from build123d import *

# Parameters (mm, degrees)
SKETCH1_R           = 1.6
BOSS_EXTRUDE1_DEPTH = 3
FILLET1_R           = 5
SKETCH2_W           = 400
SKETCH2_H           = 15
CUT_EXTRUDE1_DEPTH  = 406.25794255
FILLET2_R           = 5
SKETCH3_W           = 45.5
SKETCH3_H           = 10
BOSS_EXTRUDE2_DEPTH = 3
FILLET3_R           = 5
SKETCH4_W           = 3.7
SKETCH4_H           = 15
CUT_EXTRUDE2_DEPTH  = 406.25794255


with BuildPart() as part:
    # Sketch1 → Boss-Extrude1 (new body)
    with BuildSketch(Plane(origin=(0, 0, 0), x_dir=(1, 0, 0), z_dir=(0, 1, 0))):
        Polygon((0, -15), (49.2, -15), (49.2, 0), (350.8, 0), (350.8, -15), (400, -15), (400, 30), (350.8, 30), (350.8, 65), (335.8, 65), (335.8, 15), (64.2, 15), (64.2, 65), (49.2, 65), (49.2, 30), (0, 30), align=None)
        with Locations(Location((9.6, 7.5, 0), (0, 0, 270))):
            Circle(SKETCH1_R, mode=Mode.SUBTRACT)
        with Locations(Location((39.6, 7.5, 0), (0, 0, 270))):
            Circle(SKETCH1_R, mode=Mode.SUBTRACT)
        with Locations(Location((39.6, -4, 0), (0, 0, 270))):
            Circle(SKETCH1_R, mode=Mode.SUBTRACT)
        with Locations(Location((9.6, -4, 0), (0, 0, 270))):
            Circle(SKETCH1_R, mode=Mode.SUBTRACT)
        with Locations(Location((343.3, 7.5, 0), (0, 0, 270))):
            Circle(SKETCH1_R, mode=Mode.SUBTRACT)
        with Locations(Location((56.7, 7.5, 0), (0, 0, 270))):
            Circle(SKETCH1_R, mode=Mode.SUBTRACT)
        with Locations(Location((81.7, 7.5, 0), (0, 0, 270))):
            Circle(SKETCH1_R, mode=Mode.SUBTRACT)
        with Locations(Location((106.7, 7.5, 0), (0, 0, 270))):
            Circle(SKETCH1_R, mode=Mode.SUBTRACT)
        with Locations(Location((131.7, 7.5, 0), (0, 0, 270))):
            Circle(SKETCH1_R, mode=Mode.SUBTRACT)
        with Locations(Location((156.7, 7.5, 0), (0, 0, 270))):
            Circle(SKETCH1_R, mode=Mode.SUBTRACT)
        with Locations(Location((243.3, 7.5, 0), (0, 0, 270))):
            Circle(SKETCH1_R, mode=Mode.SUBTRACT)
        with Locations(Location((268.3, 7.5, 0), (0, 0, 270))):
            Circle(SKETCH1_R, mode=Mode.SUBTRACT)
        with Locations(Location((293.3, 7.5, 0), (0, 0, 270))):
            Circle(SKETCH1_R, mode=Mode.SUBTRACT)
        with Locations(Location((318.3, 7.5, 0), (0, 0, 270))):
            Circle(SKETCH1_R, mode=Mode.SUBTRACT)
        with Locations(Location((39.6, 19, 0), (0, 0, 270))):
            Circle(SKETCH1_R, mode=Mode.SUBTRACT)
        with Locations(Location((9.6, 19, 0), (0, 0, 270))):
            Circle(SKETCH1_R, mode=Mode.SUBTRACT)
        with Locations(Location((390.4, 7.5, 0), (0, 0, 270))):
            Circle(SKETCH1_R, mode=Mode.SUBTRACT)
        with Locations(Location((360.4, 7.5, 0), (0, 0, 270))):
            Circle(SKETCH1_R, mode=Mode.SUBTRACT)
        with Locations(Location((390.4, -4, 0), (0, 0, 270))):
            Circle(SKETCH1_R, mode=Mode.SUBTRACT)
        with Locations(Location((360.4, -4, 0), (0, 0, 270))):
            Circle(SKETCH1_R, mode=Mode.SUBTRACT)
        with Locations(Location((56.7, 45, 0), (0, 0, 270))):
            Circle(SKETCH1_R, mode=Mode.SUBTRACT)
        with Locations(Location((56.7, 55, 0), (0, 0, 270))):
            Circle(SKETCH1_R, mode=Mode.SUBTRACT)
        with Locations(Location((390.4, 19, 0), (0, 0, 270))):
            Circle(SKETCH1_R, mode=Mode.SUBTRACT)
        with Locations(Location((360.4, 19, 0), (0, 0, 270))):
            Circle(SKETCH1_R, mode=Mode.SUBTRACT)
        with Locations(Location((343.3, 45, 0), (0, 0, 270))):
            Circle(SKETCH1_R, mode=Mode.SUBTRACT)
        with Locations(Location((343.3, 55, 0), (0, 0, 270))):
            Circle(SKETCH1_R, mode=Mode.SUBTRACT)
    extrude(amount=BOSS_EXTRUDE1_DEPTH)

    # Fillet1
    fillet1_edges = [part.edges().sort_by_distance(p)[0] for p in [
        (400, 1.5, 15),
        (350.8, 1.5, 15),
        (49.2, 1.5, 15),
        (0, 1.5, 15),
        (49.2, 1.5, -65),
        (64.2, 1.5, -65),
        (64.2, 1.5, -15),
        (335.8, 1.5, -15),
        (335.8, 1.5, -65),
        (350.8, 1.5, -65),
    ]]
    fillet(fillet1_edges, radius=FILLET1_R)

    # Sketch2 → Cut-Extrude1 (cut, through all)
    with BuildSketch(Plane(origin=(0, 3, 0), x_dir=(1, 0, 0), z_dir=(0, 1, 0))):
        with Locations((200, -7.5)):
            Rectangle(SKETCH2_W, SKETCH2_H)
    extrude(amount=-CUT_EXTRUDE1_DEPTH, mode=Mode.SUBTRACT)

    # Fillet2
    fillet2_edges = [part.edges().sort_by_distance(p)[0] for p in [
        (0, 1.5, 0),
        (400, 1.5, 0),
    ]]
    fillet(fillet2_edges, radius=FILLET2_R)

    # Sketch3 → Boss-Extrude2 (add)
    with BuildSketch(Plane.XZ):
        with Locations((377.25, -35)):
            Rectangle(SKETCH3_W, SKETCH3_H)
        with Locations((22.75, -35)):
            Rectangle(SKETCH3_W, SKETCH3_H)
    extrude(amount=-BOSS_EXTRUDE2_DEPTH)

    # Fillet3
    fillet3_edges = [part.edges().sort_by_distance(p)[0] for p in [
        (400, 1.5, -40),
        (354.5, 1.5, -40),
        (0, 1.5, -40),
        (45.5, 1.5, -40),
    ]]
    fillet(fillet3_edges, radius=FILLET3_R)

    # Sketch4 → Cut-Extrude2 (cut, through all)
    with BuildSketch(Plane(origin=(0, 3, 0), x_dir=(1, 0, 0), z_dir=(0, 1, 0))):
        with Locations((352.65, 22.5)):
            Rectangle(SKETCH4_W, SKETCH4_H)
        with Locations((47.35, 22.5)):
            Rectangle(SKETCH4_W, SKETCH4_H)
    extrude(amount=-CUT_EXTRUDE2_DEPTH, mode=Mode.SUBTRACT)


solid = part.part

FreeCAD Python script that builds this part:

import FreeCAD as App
import Part
import Sketcher
Q = App.Units.Quantity


def edges_at(feature, points):
    """Names of the edges that pass closest to the given points."""
    edges = feature.Shape.Edges
    near = lambda p: min(range(len(edges)), key=lambda i: edges[i].distToShape(Part.Vertex(*p))[0])
    return sorted({f"Edge{near(p) + 1}" for p in points})

doc = App.newDocument("Part")
body = doc.addObject("PartDesign::Body", "Body")

sketch1 = doc.addObject("Sketcher::SketchObject", "Sketch")
body.addObject(sketch1)
sketch1.AttachmentSupport = (doc.XZ_Plane, [""])
sketch1.MapMode = "FlatFace"
sketch1.addGeometry([
    Part.LineSegment(App.Vector(0, 15, 0), App.Vector(49.2, 15, 0)),
    Part.LineSegment(App.Vector(49.2, 15, 0), App.Vector(49.2, 0, 0)),
    Part.LineSegment(App.Vector(49.2, 0, 0), App.Vector(350.8, 0, 0)),
    Part.LineSegment(App.Vector(350.8, 0, 0), App.Vector(350.8, 15, 0)),
    Part.LineSegment(App.Vector(350.8, 15, 0), App.Vector(400, 15, 0)),
    Part.LineSegment(App.Vector(400, 15, 0), App.Vector(400, -30, 0)),
    Part.LineSegment(App.Vector(400, -30, 0), App.Vector(350.8, -30, 0)),
    Part.LineSegment(App.Vector(350.8, -30, 0), App.Vector(350.8, -65, 0)),
    Part.LineSegment(App.Vector(350.8, -65, 0), App.Vector(335.8, -65, 0)),
    Part.LineSegment(App.Vector(335.8, -65, 0), App.Vector(335.8, -15, 0)),
    Part.LineSegment(App.Vector(335.8, -15, 0), App.Vector(64.2, -15, 0)),
    Part.LineSegment(App.Vector(64.2, -15, 0), App.Vector(64.2, -65, 0)),
    Part.LineSegment(App.Vector(64.2, -65, 0), App.Vector(49.2, -65, 0)),
    Part.LineSegment(App.Vector(49.2, -65, 0), App.Vector(49.2, -30, 0)),
    Part.LineSegment(App.Vector(49.2, -30, 0), App.Vector(0, -30, 0)),
    Part.LineSegment(App.Vector(0, -30, 0), App.Vector(0, 15, 0)),
    Part.Circle(App.Vector(9.6, 4, 0), App.Vector(0, 0, 1), 1.6),
    Part.Circle(App.Vector(39.6, 4, 0), App.Vector(0, 0, 1), 1.6),
    Part.Circle(App.Vector(9.6, -7.5, 0), App.Vector(0, 0, 1), 1.6),
    Part.Circle(App.Vector(39.6, -7.5, 0), App.Vector(0, 0, 1), 1.6),
    Part.Circle(App.Vector(56.7, -7.5, 0), App.Vector(0, 0, 1), 1.6),
    Part.Circle(App.Vector(81.7, -7.5, 0), App.Vector(0, 0, 1), 1.6),
    Part.Circle(App.Vector(106.7, -7.5, 0), App.Vector(0, 0, 1), 1.6),
    Part.Circle(App.Vector(131.7, -7.5, 0), App.Vector(0, 0, 1), 1.6),
    Part.Circle(App.Vector(156.7, -7.5, 0), App.Vector(0, 0, 1), 1.6),
    Part.Circle(App.Vector(9.6, -19, 0), App.Vector(0, 0, 1), 1.6),
    Part.Circle(App.Vector(39.6, -19, 0), App.Vector(0, 0, 1), 1.6),
    Part.Circle(App.Vector(243.3, -7.5, 0), App.Vector(0, 0, 1), 1.6),
    Part.Circle(App.Vector(268.3, -7.5, 0), App.Vector(0, 0, 1), 1.6),
    Part.Circle(App.Vector(293.3, -7.5, 0), App.Vector(0, 0, 1), 1.6),
    Part.Circle(App.Vector(360.4, 4, 0), App.Vector(0, 0, 1), 1.6),
    Part.Circle(App.Vector(390.4, 4, 0), App.Vector(0, 0, 1), 1.6),
    Part.Circle(App.Vector(318.3, -7.5, 0), App.Vector(0, 0, 1), 1.6),
    Part.Circle(App.Vector(343.3, -7.5, 0), App.Vector(0, 0, 1), 1.6),
    Part.Circle(App.Vector(360.4, -7.5, 0), App.Vector(0, 0, 1), 1.6),
    Part.Circle(App.Vector(390.4, -7.5, 0), App.Vector(0, 0, 1), 1.6),
    Part.Circle(App.Vector(360.4, -19, 0), App.Vector(0, 0, 1), 1.6),
    Part.Circle(App.Vector(390.4, -19, 0), App.Vector(0, 0, 1), 1.6),
    Part.Circle(App.Vector(56.7, -45, 0), App.Vector(0, 0, 1), 1.6),
    Part.Circle(App.Vector(56.7, -55, 0), App.Vector(0, 0, 1), 1.6),
    Part.Circle(App.Vector(343.3, -45, 0), App.Vector(0, 0, 1), 1.6),
    Part.Circle(App.Vector(343.3, -55, 0), App.Vector(0, 0, 1), 1.6),
], False)
sketch1.addConstraint([
    Sketcher.Constraint("Coincident", 0, 2, 1, 1),
    Sketcher.Constraint("Coincident", 1, 2, 2, 1),
    Sketcher.Constraint("Coincident", 2, 2, 3, 1),
    Sketcher.Constraint("Coincident", 3, 2, 4, 1),
    Sketcher.Constraint("Coincident", 4, 2, 5, 1),
    Sketcher.Constraint("Coincident", 5, 2, 6, 1),
    Sketcher.Constraint("Coincident", 6, 2, 7, 1),
    Sketcher.Constraint("Coincident", 7, 2, 8, 1),
    Sketcher.Constraint("Coincident", 8, 2, 9, 1),
    Sketcher.Constraint("Coincident", 9, 2, 10, 1),
    Sketcher.Constraint("Coincident", 10, 2, 11, 1),
    Sketcher.Constraint("Coincident", 11, 2, 12, 1),
    Sketcher.Constraint("Coincident", 12, 2, 13, 1),
    Sketcher.Constraint("Coincident", 13, 2, 14, 1),
    Sketcher.Constraint("Coincident", 14, 2, 15, 1),
    Sketcher.Constraint("Coincident", 15, 2, 0, 1),
    Sketcher.Constraint("Horizontal", 0),
    Sketcher.Constraint("Vertical", 1),
    Sketcher.Constraint("Horizontal", 2),
    Sketcher.Constraint("Vertical", 3),
    Sketcher.Constraint("Horizontal", 4),
    Sketcher.Constraint("Vertical", 5),
    Sketcher.Constraint("Horizontal", 6),
    Sketcher.Constraint("Vertical", 7),
    Sketcher.Constraint("Horizontal", 8),
    Sketcher.Constraint("Vertical", 9),
    Sketcher.Constraint("Horizontal", 10),
    Sketcher.Constraint("Vertical", 11),
    Sketcher.Constraint("Horizontal", 12),
    Sketcher.Constraint("Vertical", 13),
    Sketcher.Constraint("Horizontal", 14),
    Sketcher.Constraint("Vertical", 15),
    Sketcher.Constraint("Equal", 16, 17),
    Sketcher.Constraint("Equal", 17, 18),
    Sketcher.Constraint("Equal", 18, 19),
    Sketcher.Constraint("Equal", 19, 20),
    Sketcher.Constraint("Equal", 20, 21),
    Sketcher.Constraint("Equal", 21, 22),
    Sketcher.Constraint("Equal", 22, 23),
    Sketcher.Constraint("Equal", 23, 24),
    Sketcher.Constraint("Equal", 24, 25),
    Sketcher.Constraint("Equal", 25, 26),
    Sketcher.Constraint("Equal", 26, 27),
    Sketcher.Constraint("Equal", 27, 28),
    Sketcher.Constraint("Equal", 28, 29),
    Sketcher.Constraint("Equal", 29, 30),
    Sketcher.Constraint("Equal", 30, 31),
    Sketcher.Constraint("Equal", 31, 32),
    Sketcher.Constraint("Equal", 32, 33),
    Sketcher.Constraint("Equal", 33, 34),
    Sketcher.Constraint("Equal", 34, 35),
    Sketcher.Constraint("Equal", 35, 36),
    Sketcher.Constraint("Equal", 36, 37),
    Sketcher.Constraint("Equal", 37, 38),
    Sketcher.Constraint("Equal", 38, 39),
    Sketcher.Constraint("Equal", 39, 40),
    Sketcher.Constraint("Equal", 40, 41),
    Sketcher.Constraint("PointOnObject", 1, 2, -1),
    Sketcher.Constraint("PointOnObject", 14, 2, -2),
    Sketcher.Constraint("Horizontal", 16, 3, 17, 3),
    Sketcher.Constraint("Horizontal", 18, 3, 19, 3),
    Sketcher.Constraint("Horizontal", 19, 3, 20, 3),
    Sketcher.Constraint("Horizontal", 20, 3, 21, 3),
    Sketcher.Constraint("Horizontal", 21, 3, 22, 3),
    Sketcher.Constraint("Horizontal", 22, 3, 23, 3),
    Sketcher.Constraint("Horizontal", 23, 3, 24, 3),
    Sketcher.Constraint("Horizontal", 25, 3, 26, 3),
    Sketcher.Constraint("Horizontal", 24, 3, 27, 3),
    Sketcher.Constraint("Horizontal", 27, 3, 28, 3),
    Sketcher.Constraint("Horizontal", 28, 3, 29, 3),
    Sketcher.Constraint("Horizontal", 17, 3, 30, 3),
    Sketcher.Constraint("Horizontal", 30, 3, 31, 3),
    Sketcher.Constraint("Horizontal", 29, 3, 32, 3),
    Sketcher.Constraint("Horizontal", 32, 3, 33, 3),
    Sketcher.Constraint("Horizontal", 33, 3, 34, 3),
    Sketcher.Constraint("Horizontal", 34, 3, 35, 3),
    Sketcher.Constraint("Horizontal", 26, 3, 36, 3),
    Sketcher.Constraint("Horizontal", 36, 3, 37, 3),
    Sketcher.Constraint("Horizontal", 38, 3, 40, 3),
    Sketcher.Constraint("Horizontal", 39, 3, 41, 3),
    Sketcher.Constraint("Horizontal", 0, 2, 3, 2),
    Sketcher.Constraint("Horizontal", 8, 2, 11, 2),
    Sketcher.Constraint("Horizontal", 6, 2, 13, 2),
    Sketcher.Constraint("Vertical", 16, 3, 18, 3),
    Sketcher.Constraint("Vertical", 17, 3, 19, 3),
    Sketcher.Constraint("Vertical", 18, 3, 25, 3),
    Sketcher.Constraint("Vertical", 19, 3, 26, 3),
    Sketcher.Constraint("Vertical", 30, 3, 34, 3),
    Sketcher.Constraint("Vertical", 31, 3, 35, 3),
    Sketcher.Constraint("Vertical", 34, 3, 36, 3),
    Sketcher.Constraint("Vertical", 35, 3, 37, 3),
    Sketcher.Constraint("Vertical", 20, 3, 38, 3),
    Sketcher.Constraint("Vertical", 38, 3, 39, 3),
    Sketcher.Constraint("Vertical", 33, 3, 40, 3),
    Sketcher.Constraint("Vertical", 40, 3, 41, 3),
    Sketcher.Constraint("Vertical", 3, 2, 6, 2),
    Sketcher.Constraint("Vertical", 1, 2, 12, 2),
    Sketcher.Constraint("Equal", 0, 4),
    Sketcher.Constraint("Equal", 8, 12),
    Sketcher.Constraint("Equal", 12, 1),
    Sketcher.Constraint("Diameter", 16, Q("3.2 mm")),
    Sketcher.Constraint("DistanceX", 8, 2, 8, 1, Q("15 mm")),
    Sketcher.Constraint("DistanceY", 5, 2, 5, 1, Q("45 mm")),
    Sketcher.Constraint("DistanceY", 7, 2, 7, 1, Q("35 mm")),
    Sketcher.Constraint("DistanceY", 9, 1, 9, 2, Q("50 mm")),
    Sketcher.Constraint("DistanceX", 0, 1, 0, 2, Q("49.2 mm")),
    Sketcher.Constraint("DistanceX", 2, 1, 2, 2, Q("301.6 mm")),
    Sketcher.Constraint("DistanceY", -1, 1, 16, 3, Q("4 mm")),
    Sketcher.Constraint("DistanceY", 25, 3, -1, 1, Q("19 mm")),
    Sketcher.Constraint("DistanceY", 38, 3, -1, 1, Q("45 mm")),
    Sketcher.Constraint("DistanceY", 39, 3, -1, 1, Q("55 mm")),
    Sketcher.Constraint("DistanceX", 16, 3, 17, 3, Q("30 mm")),
    Sketcher.Constraint("DistanceX", 20, 3, 21, 3, Q("25 mm")),
    Sketcher.Constraint("DistanceX", 21, 3, 22, 3, Q("25 mm")),
    Sketcher.Constraint("DistanceX", 22, 3, 23, 3, Q("25 mm")),
    Sketcher.Constraint("DistanceX", 23, 3, 24, 3, Q("25 mm")),
    Sketcher.Constraint("DistanceX", 27, 3, 28, 3, Q("25 mm")),
    Sketcher.Constraint("DistanceX", 28, 3, 29, 3, Q("25 mm")),
    Sketcher.Constraint("DistanceX", 30, 3, 31, 3, Q("30 mm")),
    Sketcher.Constraint("DistanceX", 29, 3, 32, 3, Q("25 mm")),
    Sketcher.Constraint("DistanceX", 32, 3, 33, 3, Q("25 mm")),
    Sketcher.Constraint("DistanceX", -1, 1, 16, 3, Q("9.6 mm")),
    Sketcher.Constraint("DistanceY", 18, 3, -1, 1, Q("7.5 mm")),
    Sketcher.Constraint("DistanceX", -1, 1, 20, 3, Q("56.7 mm")),
    Sketcher.Constraint("DistanceX", -1, 1, 27, 3, Q("243.3 mm")),
    Sketcher.Constraint("DistanceX", -1, 1, 30, 3, Q("360.4 mm")),
])
pad1 = doc.addObject("PartDesign::Pad", "Pad")
body.addObject(pad1)
pad1.Profile = sketch1
pad1.Length = 3
pad1.Reversed = True
doc.recompute()

fillet = doc.addObject("PartDesign::Fillet", "Fillet")
body.addObject(fillet)
fillet.Base = (pad1, edges_at(pad1, [
    (400, 1.5, 15),
    (350.8, 1.5, 15),
    (49.2, 1.5, 15),
    (0, 1.5, 15),
    (49.2, 1.5, -65),
    (64.2, 1.5, -65),
    (64.2, 1.5, -15),
    (335.8, 1.5, -15),
    (335.8, 1.5, -65),
    (350.8, 1.5, -65),
]))
fillet.Radius = 5

sketch2 = doc.addObject("Sketcher::SketchObject", "Sketch001")
body.addObject(sketch2)
sketch2.AttachmentSupport = (doc.XZ_Plane, [""])
sketch2.MapMode = "FlatFace"
sketch2.AttachmentOffset = App.Placement(App.Vector(0, 0, -3), App.Rotation())
sketch2.addGeometry([
    Part.LineSegment(App.Vector(0, 0, 0), App.Vector(0, 15, 0)),
    Part.LineSegment(App.Vector(0, 15, 0), App.Vector(400, 15, 0)),
    Part.LineSegment(App.Vector(400, 15, 0), App.Vector(400, 0, 0)),
    Part.LineSegment(App.Vector(400, 0, 0), App.Vector(0, 0, 0)),
], False)
sketch2.addConstraint([
    Sketcher.Constraint("Coincident", 0, 2, 1, 1),
    Sketcher.Constraint("Coincident", 1, 2, 2, 1),
    Sketcher.Constraint("Coincident", 2, 2, 3, 1),
    Sketcher.Constraint("Coincident", 3, 2, 0, 1),
    Sketcher.Constraint("Vertical", 0),
    Sketcher.Constraint("Horizontal", 1),
    Sketcher.Constraint("Vertical", 2),
    Sketcher.Constraint("Horizontal", 3),
    Sketcher.Constraint("Coincident", 3, 2, -1, 1),
    Sketcher.Constraint("DistanceX", 1, 1, 1, 2, Q("400 mm")),
    Sketcher.Constraint("DistanceY", 0, 1, 0, 2, Q("15 mm")),
])
pocket1 = doc.addObject("PartDesign::Pocket", "Pocket")
body.addObject(pocket1)
pocket1.Profile = sketch2
pocket1.Type = "ThroughAll"
pocket1.Reversed = True
doc.recompute()

fillet2 = doc.addObject("PartDesign::Fillet", "Fillet001")
body.addObject(fillet2)
fillet2.Base = (pocket1, edges_at(pocket1, [(0, 1.5, 0), (400, 1.5, 0)]))
fillet2.Radius = 5

sketch3 = doc.addObject("Sketcher::SketchObject", "Sketch002")
body.addObject(sketch3)
sketch3.AttachmentSupport = (doc.XZ_Plane, [""])
sketch3.MapMode = "FlatFace"
sketch3.addGeometry([
    Part.LineSegment(App.Vector(354.5, -30, 0), App.Vector(354.5, -40, 0)),
    Part.LineSegment(App.Vector(354.5, -40, 0), App.Vector(400, -40, 0)),
    Part.LineSegment(App.Vector(400, -40, 0), App.Vector(400, -30, 0)),
    Part.LineSegment(App.Vector(400, -30, 0), App.Vector(354.5, -30, 0)),
    Part.LineSegment(App.Vector(0, -30, 0), App.Vector(0, -40, 0)),
    Part.LineSegment(App.Vector(0, -40, 0), App.Vector(45.5, -40, 0)),
    Part.LineSegment(App.Vector(45.5, -40, 0), App.Vector(45.5, -30, 0)),
    Part.LineSegment(App.Vector(45.5, -30, 0), App.Vector(0, -30, 0)),
], False)
sketch3.addConstraint([
    Sketcher.Constraint("Coincident", 0, 2, 1, 1),
    Sketcher.Constraint("Coincident", 1, 2, 2, 1),
    Sketcher.Constraint("Coincident", 2, 2, 3, 1),
    Sketcher.Constraint("Coincident", 3, 2, 0, 1),
    Sketcher.Constraint("Coincident", 4, 2, 5, 1),
    Sketcher.Constraint("Coincident", 5, 2, 6, 1),
    Sketcher.Constraint("Coincident", 6, 2, 7, 1),
    Sketcher.Constraint("Coincident", 7, 2, 4, 1),
    Sketcher.Constraint("Vertical", 0),
    Sketcher.Constraint("Horizontal", 1),
    Sketcher.Constraint("Vertical", 2),
    Sketcher.Constraint("Horizontal", 3),
    Sketcher.Constraint("Vertical", 4),
    Sketcher.Constraint("Horizontal", 5),
    Sketcher.Constraint("Vertical", 6),
    Sketcher.Constraint("Horizontal", 7),
    Sketcher.Constraint("PointOnObject", 4, 2, -2),
    Sketcher.Constraint("Horizontal", 1, 2, 4, 2),
    Sketcher.Constraint("Horizontal", 3, 2, 6, 2),
    Sketcher.Constraint("Equal", 3, 5),
    Sketcher.Constraint("DistanceY", 0, 2, 0, 1, Q("10 mm")),
    Sketcher.Constraint("DistanceX", 1, 1, 1, 2, Q("45.5 mm")),
    Sketcher.Constraint("DistanceY", 0, 2, -1, 1, Q("40 mm")),
    Sketcher.Constraint("DistanceX", -1, 1, 1, 2, Q("400 mm")),
])
pad2 = doc.addObject("PartDesign::Pad", "Pad001")
body.addObject(pad2)
pad2.Profile = sketch3
pad2.Length = 3
pad2.Reversed = True
doc.recompute()

fillet3 = doc.addObject("PartDesign::Fillet", "Fillet002")
body.addObject(fillet3)
fillet3.Base = (pad2, edges_at(pad2, [
    (400, 1.5, -40),
    (354.5, 1.5, -40),
    (0, 1.5, -40),
    (45.5, 1.5, -40),
]))
fillet3.Radius = 5

sketch4 = doc.addObject("Sketcher::SketchObject", "Sketch003")
body.addObject(sketch4)
sketch4.AttachmentSupport = (doc.XZ_Plane, [""])
sketch4.MapMode = "FlatFace"
sketch4.AttachmentOffset = App.Placement(App.Vector(0, 0, -3), App.Rotation())
sketch4.addGeometry([
    Part.LineSegment(App.Vector(350.8, -30, 0), App.Vector(350.8, -15, 0)),
    Part.LineSegment(App.Vector(350.8, -15, 0), App.Vector(354.5, -15, 0)),
    Part.LineSegment(App.Vector(354.5, -15, 0), App.Vector(354.5, -30, 0)),
    Part.LineSegment(App.Vector(354.5, -30, 0), App.Vector(350.8, -30, 0)),
    Part.LineSegment(App.Vector(45.5, -30, 0), App.Vector(45.5, -15, 0)),
    Part.LineSegment(App.Vector(45.5, -15, 0), App.Vector(49.2, -15, 0)),
    Part.LineSegment(App.Vector(49.2, -15, 0), App.Vector(49.2, -30, 0)),
    Part.LineSegment(App.Vector(49.2, -30, 0), App.Vector(45.5, -30, 0)),
], False)
sketch4.addConstraint([
    Sketcher.Constraint("Coincident", 0, 2, 1, 1),
    Sketcher.Constraint("Coincident", 1, 2, 2, 1),
    Sketcher.Constraint("Coincident", 2, 2, 3, 1),
    Sketcher.Constraint("Coincident", 3, 2, 0, 1),
    Sketcher.Constraint("Coincident", 4, 2, 5, 1),
    Sketcher.Constraint("Coincident", 5, 2, 6, 1),
    Sketcher.Constraint("Coincident", 6, 2, 7, 1),
    Sketcher.Constraint("Coincident", 7, 2, 4, 1),
    Sketcher.Constraint("Vertical", 0),
    Sketcher.Constraint("Horizontal", 1),
    Sketcher.Constraint("Vertical", 2),
    Sketcher.Constraint("Horizontal", 3),
    Sketcher.Constraint("Vertical", 4),
    Sketcher.Constraint("Horizontal", 5),
    Sketcher.Constraint("Vertical", 6),
    Sketcher.Constraint("Horizontal", 7),
    Sketcher.Constraint("Horizontal", 1, 2, 4, 2),
    Sketcher.Constraint("Horizontal", 3, 2, 6, 2),
    Sketcher.Constraint("Equal", 3, 5),
    Sketcher.Constraint("DistanceY", 0, 1, 0, 2, Q("15 mm")),
    Sketcher.Constraint("DistanceX", 1, 1, 1, 2, Q("3.7 mm")),
    Sketcher.Constraint("DistanceY", 0, 2, -1, 1, Q("15 mm")),
    Sketcher.Constraint("DistanceX", 4, 2, 1, 2, Q("309 mm")),
    Sketcher.Constraint("DistanceX", -1, 1, 0, 2, Q("350.8 mm")),
])
pocket2 = doc.addObject("PartDesign::Pocket", "Pocket001")
body.addObject(pocket2)
pocket2.Profile = sketch4
pocket2.Type = "ThroughAll"
pocket2.Reversed = True

doc.recompute()
